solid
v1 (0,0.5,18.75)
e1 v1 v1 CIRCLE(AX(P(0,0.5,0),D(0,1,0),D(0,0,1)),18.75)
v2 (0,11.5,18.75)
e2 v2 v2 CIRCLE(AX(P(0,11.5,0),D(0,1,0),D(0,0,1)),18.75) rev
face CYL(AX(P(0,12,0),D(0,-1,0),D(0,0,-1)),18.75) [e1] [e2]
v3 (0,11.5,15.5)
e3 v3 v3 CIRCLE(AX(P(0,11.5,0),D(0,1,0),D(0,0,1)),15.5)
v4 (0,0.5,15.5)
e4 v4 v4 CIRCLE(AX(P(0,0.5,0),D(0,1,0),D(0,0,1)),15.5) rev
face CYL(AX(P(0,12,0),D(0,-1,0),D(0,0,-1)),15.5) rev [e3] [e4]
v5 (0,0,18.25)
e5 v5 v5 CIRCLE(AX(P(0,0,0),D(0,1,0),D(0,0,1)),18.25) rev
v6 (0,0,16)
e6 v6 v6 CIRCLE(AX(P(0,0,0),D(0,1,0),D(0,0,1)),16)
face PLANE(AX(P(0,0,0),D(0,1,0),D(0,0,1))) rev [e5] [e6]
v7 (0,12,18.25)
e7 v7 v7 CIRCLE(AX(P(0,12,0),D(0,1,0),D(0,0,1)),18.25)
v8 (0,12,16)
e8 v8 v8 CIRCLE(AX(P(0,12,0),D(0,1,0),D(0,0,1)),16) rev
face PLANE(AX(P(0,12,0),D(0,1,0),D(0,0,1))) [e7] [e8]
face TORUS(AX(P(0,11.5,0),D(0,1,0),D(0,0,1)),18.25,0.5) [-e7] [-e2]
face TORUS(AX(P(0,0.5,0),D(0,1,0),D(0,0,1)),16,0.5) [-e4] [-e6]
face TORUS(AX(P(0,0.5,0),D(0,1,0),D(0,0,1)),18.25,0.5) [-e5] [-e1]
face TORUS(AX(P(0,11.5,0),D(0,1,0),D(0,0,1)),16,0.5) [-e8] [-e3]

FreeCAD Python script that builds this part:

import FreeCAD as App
import Part
import Sketcher
from FreeCAD import Vector


def edges_at(feature, points):
    """Names of the edges that pass closest to the given points."""
    edges = feature.Shape.Edges
    near = lambda p: min(range(len(edges)), key=lambda i: edges[i].distToShape(Part.Vertex(*p))[0])
    return sorted({f"Edge{near(p) + 1}" for p in points})

doc = App.newDocument("Part")
body = doc.addObject("PartDesign::Body", "Body")

# Sketch on XZ plane
sketch1 = doc.addObject("Sketcher::SketchObject", "Sketch")
body.addObject(sketch1)
sketch1.AttachmentSupport = (doc.XZ_Plane, [""])
sketch1.MapMode = "FlatFace"
sketch1.addGeometry([
    Part.Circle(Vector(0, 0, 0), Vector(0, 0, 1), 19),
    Part.Circle(Vector(0, 0, 0), Vector(0, 0, 1), 16),
], False)
sketch1.addConstraint([
    Sketcher.Constraint("Coincident", 0, 3, -1, 1),
    Sketcher.Constraint("Coincident", 1, 3, -1, 1),
    Sketcher.Constraint("Diameter", 1, 31.0),
    Sketcher.Constraint("Diameter", 0, 37.5),
])
pad1 = doc.addObject("PartDesign::Pad", "Pad")
body.addObject(pad1)
pad1.Profile = sketch1
pad1.Length = 12
pad1.Reversed = True
doc.recompute()

fillet = doc.addObject("PartDesign::Fillet", "Fillet")
body.addObject(fillet)
fillet.Base = (pad1, edges_at(pad1, [
    (0, 0, -18.75),
    (0, 12, -18.75),
    (0, 0, -15.5),
    (0, 12, -15.5),
]))
fillet.Radius = 0.5

doc.recompute()
